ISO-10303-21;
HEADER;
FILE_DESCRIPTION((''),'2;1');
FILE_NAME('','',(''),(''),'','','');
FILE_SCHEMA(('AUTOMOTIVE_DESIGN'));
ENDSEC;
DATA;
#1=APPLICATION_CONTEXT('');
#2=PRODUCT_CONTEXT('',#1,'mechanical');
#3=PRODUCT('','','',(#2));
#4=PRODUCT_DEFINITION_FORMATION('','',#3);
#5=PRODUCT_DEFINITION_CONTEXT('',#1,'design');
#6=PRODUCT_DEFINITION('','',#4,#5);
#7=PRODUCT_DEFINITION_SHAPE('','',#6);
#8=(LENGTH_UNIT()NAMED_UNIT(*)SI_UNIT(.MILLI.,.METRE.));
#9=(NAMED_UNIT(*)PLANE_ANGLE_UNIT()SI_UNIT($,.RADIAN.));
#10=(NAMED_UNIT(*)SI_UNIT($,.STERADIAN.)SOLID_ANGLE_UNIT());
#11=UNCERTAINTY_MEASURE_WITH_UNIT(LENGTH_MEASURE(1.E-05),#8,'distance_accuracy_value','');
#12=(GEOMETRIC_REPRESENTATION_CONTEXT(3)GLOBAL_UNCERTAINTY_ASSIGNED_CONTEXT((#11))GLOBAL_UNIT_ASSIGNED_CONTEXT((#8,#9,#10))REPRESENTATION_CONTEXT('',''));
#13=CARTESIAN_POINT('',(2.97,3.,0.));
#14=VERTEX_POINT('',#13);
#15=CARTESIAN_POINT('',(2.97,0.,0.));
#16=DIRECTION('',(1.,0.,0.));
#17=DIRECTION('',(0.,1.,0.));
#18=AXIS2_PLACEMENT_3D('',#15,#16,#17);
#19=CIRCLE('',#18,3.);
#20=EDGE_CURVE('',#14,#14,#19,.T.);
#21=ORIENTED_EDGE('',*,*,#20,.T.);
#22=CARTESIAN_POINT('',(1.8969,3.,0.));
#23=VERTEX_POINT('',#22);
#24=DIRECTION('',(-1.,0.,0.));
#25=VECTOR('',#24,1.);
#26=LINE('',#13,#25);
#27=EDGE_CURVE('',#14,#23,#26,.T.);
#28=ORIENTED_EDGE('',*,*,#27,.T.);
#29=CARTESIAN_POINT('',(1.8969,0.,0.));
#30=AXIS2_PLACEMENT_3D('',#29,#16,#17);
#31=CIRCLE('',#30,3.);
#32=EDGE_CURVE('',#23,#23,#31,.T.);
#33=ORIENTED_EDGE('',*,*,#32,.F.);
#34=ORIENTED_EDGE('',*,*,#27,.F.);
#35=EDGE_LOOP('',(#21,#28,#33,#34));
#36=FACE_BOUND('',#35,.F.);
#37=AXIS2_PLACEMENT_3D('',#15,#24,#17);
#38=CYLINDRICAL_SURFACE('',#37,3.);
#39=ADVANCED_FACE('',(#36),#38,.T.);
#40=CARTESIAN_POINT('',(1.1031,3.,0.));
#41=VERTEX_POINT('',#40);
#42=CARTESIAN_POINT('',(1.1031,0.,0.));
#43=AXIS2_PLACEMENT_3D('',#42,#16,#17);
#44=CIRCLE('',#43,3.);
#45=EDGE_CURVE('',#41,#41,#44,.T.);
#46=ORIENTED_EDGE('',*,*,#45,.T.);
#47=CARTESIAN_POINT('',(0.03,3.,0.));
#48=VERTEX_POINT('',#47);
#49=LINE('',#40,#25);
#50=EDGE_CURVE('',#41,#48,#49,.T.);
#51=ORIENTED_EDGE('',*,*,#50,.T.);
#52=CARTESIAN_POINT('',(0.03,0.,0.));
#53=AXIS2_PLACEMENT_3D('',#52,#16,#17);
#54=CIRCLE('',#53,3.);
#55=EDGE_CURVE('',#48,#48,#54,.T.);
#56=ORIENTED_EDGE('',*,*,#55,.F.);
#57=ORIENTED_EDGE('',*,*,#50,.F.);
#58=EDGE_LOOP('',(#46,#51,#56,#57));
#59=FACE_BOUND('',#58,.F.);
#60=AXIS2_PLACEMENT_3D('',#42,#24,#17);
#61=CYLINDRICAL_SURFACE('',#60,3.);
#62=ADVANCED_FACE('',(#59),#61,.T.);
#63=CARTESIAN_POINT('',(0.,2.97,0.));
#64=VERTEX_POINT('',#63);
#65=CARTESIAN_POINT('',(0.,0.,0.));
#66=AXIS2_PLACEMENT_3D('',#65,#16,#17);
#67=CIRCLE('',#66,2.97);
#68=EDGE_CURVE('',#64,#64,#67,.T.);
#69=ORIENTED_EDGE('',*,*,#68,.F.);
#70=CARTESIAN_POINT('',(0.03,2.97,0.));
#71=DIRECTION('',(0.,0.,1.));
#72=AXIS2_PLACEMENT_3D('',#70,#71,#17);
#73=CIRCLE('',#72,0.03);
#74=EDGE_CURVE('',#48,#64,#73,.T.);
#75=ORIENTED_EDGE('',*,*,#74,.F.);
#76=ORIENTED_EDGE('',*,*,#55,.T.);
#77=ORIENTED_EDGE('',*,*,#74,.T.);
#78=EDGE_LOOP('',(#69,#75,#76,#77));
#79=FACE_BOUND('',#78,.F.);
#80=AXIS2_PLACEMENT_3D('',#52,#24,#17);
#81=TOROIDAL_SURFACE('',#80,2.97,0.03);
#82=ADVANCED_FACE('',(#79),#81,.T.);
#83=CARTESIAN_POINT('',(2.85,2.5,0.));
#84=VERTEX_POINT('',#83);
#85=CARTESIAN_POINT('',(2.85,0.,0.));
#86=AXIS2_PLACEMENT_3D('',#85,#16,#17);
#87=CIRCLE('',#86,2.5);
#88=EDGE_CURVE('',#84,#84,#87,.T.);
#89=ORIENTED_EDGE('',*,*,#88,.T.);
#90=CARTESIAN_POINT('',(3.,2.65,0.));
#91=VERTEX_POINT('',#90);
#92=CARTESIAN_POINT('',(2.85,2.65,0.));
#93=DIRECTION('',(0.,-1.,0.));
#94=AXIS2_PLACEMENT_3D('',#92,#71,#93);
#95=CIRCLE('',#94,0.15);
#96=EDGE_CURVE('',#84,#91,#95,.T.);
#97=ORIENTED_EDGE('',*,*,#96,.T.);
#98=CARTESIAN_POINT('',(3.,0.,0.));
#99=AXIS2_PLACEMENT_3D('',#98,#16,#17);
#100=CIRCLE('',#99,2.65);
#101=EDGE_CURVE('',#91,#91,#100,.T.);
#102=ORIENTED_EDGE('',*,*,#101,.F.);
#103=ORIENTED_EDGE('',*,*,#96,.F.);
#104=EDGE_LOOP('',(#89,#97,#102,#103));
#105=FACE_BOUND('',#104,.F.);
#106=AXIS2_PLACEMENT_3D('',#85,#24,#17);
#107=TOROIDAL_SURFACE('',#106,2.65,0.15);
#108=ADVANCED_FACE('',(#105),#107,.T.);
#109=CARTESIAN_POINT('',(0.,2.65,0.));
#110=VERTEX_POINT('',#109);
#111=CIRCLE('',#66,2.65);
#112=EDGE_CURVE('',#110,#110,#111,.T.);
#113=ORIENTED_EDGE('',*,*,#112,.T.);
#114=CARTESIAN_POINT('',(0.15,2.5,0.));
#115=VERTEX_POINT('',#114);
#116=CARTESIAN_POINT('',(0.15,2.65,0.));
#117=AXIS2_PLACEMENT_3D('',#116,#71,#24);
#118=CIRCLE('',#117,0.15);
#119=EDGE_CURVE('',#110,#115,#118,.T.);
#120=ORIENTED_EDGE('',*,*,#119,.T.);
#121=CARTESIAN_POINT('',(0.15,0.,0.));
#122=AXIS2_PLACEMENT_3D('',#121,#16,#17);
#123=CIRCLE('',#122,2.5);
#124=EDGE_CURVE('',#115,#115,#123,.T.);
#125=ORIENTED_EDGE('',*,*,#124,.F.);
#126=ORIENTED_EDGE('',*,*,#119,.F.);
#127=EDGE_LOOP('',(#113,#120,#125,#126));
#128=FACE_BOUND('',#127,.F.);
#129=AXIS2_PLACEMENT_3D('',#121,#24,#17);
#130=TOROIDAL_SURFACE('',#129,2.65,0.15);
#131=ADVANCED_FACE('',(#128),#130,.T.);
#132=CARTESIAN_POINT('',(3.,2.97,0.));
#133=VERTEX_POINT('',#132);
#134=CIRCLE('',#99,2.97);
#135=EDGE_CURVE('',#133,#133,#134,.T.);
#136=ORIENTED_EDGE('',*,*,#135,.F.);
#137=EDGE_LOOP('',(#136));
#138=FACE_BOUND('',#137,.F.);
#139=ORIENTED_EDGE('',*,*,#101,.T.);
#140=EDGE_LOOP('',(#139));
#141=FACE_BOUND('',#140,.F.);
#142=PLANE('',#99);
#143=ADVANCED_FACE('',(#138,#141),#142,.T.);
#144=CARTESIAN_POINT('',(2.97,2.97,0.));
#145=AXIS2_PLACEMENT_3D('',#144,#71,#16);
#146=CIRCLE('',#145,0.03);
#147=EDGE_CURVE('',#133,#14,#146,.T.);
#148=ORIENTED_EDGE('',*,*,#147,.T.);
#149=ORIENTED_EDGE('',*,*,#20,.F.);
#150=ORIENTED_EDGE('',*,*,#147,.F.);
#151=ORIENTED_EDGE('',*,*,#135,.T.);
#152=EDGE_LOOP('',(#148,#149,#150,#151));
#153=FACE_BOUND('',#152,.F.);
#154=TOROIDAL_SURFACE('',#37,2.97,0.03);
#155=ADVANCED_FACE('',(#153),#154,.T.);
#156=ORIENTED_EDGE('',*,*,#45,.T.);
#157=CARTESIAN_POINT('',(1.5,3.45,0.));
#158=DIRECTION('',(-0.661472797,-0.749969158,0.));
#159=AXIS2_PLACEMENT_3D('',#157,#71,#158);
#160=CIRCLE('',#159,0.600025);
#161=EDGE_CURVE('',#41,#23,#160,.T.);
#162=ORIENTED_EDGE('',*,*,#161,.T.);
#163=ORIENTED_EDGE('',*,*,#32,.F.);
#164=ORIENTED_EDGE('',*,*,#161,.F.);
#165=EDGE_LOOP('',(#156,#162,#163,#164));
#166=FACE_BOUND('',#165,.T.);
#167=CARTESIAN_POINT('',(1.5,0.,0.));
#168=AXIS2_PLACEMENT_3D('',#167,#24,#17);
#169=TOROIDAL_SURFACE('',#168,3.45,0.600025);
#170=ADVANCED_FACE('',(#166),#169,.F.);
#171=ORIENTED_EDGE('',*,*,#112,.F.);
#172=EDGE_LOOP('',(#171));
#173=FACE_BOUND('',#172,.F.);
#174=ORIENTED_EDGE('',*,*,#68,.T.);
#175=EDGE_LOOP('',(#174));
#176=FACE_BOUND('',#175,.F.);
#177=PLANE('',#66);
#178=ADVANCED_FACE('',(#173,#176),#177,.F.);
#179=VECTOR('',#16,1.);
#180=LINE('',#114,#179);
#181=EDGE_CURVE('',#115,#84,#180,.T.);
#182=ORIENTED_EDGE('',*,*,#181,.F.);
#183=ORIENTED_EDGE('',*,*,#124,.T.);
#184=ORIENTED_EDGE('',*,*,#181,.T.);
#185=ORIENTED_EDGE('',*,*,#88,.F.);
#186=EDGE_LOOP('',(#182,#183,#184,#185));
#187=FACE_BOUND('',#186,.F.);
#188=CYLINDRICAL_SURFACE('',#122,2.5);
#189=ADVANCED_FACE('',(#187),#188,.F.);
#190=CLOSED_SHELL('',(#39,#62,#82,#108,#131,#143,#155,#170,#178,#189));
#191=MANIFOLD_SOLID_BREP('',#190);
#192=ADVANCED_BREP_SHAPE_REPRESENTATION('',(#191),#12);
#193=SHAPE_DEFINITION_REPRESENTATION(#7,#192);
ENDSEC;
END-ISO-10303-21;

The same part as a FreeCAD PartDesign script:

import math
import FreeCAD as App
import Part
import Sketcher

V = App.Vector

doc = App.newDocument("Part")
body = doc.addObject("PartDesign::Body", "Body")

# Sketch on XY plane
sketch1 = body.newObject("Sketcher::SketchObject", "Sketch")
sketch1.AttachmentSupport = (doc.getObject("XY_Plane"), [""])
sketch1.MapMode = "FlatFace"
sketch1.addGeometry([
    Part.ArcOfCircle(Part.Circle(V(0.03, 2.97, 0), V(0, 0, 1), 0.03), math.radians(90), math.radians(180)),  # 0
    Part.LineSegment(V(0, 2.97, 0), V(0, 2.65, 0)),  # 1
    Part.ArcOfCircle(Part.Circle(V(0.15, 2.65, 0), V(0, 0, 1), 0.15), math.radians(180), math.radians(270)),  # 2
    Part.LineSegment(V(0.15, 2.5, 0), V(2.85, 2.5, 0)),  # 3
    Part.ArcOfCircle(Part.Circle(V(2.85, 2.65, 0), V(0, 0, 1), 0.15), math.radians(-90), math.radians(0)),  # 4
    Part.LineSegment(V(3, 2.65, 0), V(3, 2.97, 0)),  # 5
    Part.ArcOfCircle(Part.Circle(V(2.97, 2.97, 0), V(0, 0, 1), 0.03), math.radians(0), math.radians(90)),  # 6
    Part.LineSegment(V(2.97, 3, 0), V(1.897, 3, 0)),  # 7
    Part.ArcOfCircle(Part.Circle(V(1.5, 3.45, 0), V(0, 0, 1), 0.6), math.radians(-131), math.radians(-49)),  # 8
    Part.LineSegment(V(1.103, 3, 0), V(0.03, 3, 0)),  # 9
], False)
sketch1.addConstraint([
    Sketcher.Constraint("Tangent", 0, 2, 1, 1),
    Sketcher.Constraint("Tangent", 1, 2, 2, 1),
    Sketcher.Constraint("Tangent", 2, 2, 3, 1),
    Sketcher.Constraint("Tangent", 3, 2, 4, 1),
    Sketcher.Constraint("Tangent", 4, 2, 5, 1),
    Sketcher.Constraint("Tangent", 5, 2, 6, 1),
    Sketcher.Constraint("Tangent", 6, 2, 7, 1),
    Sketcher.Constraint("Coincident", 7, 2, 8, 2),
    Sketcher.Constraint("Coincident", 8, 1, 9, 1),
    Sketcher.Constraint("Tangent", 9, 2, 0, 1),
    Sketcher.Constraint("Vertical", 1),
    Sketcher.Constraint("Horizontal", 3),
    Sketcher.Constraint("Vertical", 5),
    Sketcher.Constraint("Horizontal", 7),
    Sketcher.Constraint("Horizontal", 9),
    Sketcher.Constraint("Equal", 2, 4),
    Sketcher.Constraint("Equal", 0, 6),
    Sketcher.Constraint("PointOnObject", 0, 2, -2),
    Sketcher.Constraint("Horizontal", 0, 3, 6, 3),
    Sketcher.Constraint("Equal", 7, 9),
    Sketcher.Constraint("Radius", 8, 0.6),
    Sketcher.Constraint("Radius", 0, 0.03),
    Sketcher.Constraint("Radius", 2, 0.15),
    Sketcher.Constraint("DistanceX", 3, 1, 3, 2, 2.7),
    Sketcher.Constraint("DistanceY", -1, 1, 6, 2, 3.0),
    Sketcher.Constraint("DistanceY", 1, 2, 1, 1, 0.32),
    Sketcher.Constraint("DistanceY", 2, 3, 8, 3, 0.8),
])
revolution = body.newObject("PartDesign::Revolution", "Revolution")
revolution.Profile = sketch1
revolution.ReferenceAxis = (sketch1, ["H_Axis"])
revolution.Angle = 360

doc.recompute()
